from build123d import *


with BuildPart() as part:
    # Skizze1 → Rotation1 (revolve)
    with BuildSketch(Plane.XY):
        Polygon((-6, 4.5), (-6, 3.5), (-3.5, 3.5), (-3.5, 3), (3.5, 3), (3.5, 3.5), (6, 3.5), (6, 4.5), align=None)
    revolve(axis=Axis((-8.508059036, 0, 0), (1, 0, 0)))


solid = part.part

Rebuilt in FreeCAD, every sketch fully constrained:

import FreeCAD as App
import Part
import Sketcher
from FreeCAD import Vector
Q = App.Units.Quantity

doc = App.newDocument("Part")
params = doc.addObject("Spreadsheet::Sheet", "Params")
for row, (alias, value) in enumerate([
    ("sketch1_width", "7 mm"),
    ("sketch1_width2", "12 mm"),
    ("sketch1_height", "1 mm"),
    ("sketch1_height2", "0.5 mm"),
    ("revolution_angle", "360 deg"),
], start=1):
    params.set(f"A{row}", alias)
    params.set(f"B{row}", "=" + value)
    params.setAlias(f"B{row}", alias)

body = doc.addObject("PartDesign::Body", "Body")

# Sketch on XY plane
sketch1 = body.newObject("Sketcher::SketchObject", "Sketch")
sketch1.AttachmentSupport = (doc.getObject("XY_Plane"), [""])
sketch1.MapMode = "FlatFace"
sketch1.addGeometry(Part.LineSegment(Vector(-6, 4.5, 0), Vector(-6, 3.5, 0)), False)
sketch1.addGeometry(Part.LineSegment(Vector(-6, 3.5, 0), Vector(-3.5, 3.5, 0)), False)
sketch1.addGeometry(Part.LineSegment(Vector(-3.5, 3.5, 0), Vector(-3.5, 3, 0)), False)
sketch1.addGeometry(Part.LineSegment(Vector(-3.5, 3, 0), Vector(3.5, 3, 0)), False)
sketch1.addGeometry(Part.LineSegment(Vector(3.5, 3, 0), Vector(3.5, 3.5, 0)), False)
sketch1.addGeometry(Part.LineSegment(Vector(3.5, 3.5, 0), Vector(6, 3.5, 0)), False)
sketch1.addGeometry(Part.LineSegment(Vector(6, 3.5, 0), Vector(6, 4.5, 0)), False)
sketch1.addGeometry(Part.LineSegment(Vector(6, 4.5, 0), Vector(-6, 4.5, 0)), False)
sketch1.addConstraint(Sketcher.Constraint("Coincident", 0, 2, 1, 1))
sketch1.addConstraint(Sketcher.Constraint("Coincident", 1, 2, 2, 1))
sketch1.addConstraint(Sketcher.Constraint("Coincident", 2, 2, 3, 1))
sketch1.addConstraint(Sketcher.Constraint("Coincident", 3, 2, 4, 1))
sketch1.addConstraint(Sketcher.Constraint("Coincident", 4, 2, 5, 1))
sketch1.addConstraint(Sketcher.Constraint("Coincident", 5, 2, 6, 1))
sketch1.addConstraint(Sketcher.Constraint("Coincident", 6, 2, 7, 1))
sketch1.addConstraint(Sketcher.Constraint("Coincident", 7, 2, 0, 1))
sketch1.addConstraint(Sketcher.Constraint("Vertical", 0))
sketch1.addConstraint(Sketcher.Constraint("Horizontal", 1))
sketch1.addConstraint(Sketcher.Constraint("Vertical", 2))
sketch1.addConstraint(Sketcher.Constraint("Horizontal", 3))
sketch1.addConstraint(Sketcher.Constraint("Vertical", 4))
sketch1.addConstraint(Sketcher.Constraint("Horizontal", 5))
sketch1.addConstraint(Sketcher.Constraint("Vertical", 6))
sketch1.addConstraint(Sketcher.Constraint("Horizontal", 7))
sketch1.addConstraint(Sketcher.Constraint("Symmetric", 1, 2, 4, 2, -2))
sketch1.addConstraint(Sketcher.Constraint("Equal", 1, 5))
sketch1.addConstraint(Sketcher.Constraint("DistanceX", 3, 1, 3, 2, Q("7 mm")))
sketch1.addConstraint(Sketcher.Constraint("DistanceX", 7, 2, 7, 1, Q("12 mm")))
sketch1.addConstraint(Sketcher.Constraint("DistanceY", 0, 2, 0, 1, Q("1 mm")))
sketch1.addConstraint(Sketcher.Constraint("DistanceY", 2, 2, 2, 1, Q("0.5 mm")))
sketch1.addConstraint(Sketcher.Constraint("DistanceY", -1, 1, 2, 2, Q("3 mm")))
sketch1.setExpression("Constraints[18]", "Params.sketch1_width")
sketch1.setExpression("Constraints[19]", "Params.sketch1_width2")
sketch1.setExpression("Constraints[20]", "Params.sketch1_height")
sketch1.setExpression("Constraints[21]", "Params.sketch1_height2")
revolution = body.newObject("PartDesign::Revolution", "Revolution")
revolution.Profile = sketch1
revolution.ReferenceAxis = (sketch1, ["H_Axis"])
revolution.setExpression("Angle", "Params.revolution_angle")

doc.recompute()
